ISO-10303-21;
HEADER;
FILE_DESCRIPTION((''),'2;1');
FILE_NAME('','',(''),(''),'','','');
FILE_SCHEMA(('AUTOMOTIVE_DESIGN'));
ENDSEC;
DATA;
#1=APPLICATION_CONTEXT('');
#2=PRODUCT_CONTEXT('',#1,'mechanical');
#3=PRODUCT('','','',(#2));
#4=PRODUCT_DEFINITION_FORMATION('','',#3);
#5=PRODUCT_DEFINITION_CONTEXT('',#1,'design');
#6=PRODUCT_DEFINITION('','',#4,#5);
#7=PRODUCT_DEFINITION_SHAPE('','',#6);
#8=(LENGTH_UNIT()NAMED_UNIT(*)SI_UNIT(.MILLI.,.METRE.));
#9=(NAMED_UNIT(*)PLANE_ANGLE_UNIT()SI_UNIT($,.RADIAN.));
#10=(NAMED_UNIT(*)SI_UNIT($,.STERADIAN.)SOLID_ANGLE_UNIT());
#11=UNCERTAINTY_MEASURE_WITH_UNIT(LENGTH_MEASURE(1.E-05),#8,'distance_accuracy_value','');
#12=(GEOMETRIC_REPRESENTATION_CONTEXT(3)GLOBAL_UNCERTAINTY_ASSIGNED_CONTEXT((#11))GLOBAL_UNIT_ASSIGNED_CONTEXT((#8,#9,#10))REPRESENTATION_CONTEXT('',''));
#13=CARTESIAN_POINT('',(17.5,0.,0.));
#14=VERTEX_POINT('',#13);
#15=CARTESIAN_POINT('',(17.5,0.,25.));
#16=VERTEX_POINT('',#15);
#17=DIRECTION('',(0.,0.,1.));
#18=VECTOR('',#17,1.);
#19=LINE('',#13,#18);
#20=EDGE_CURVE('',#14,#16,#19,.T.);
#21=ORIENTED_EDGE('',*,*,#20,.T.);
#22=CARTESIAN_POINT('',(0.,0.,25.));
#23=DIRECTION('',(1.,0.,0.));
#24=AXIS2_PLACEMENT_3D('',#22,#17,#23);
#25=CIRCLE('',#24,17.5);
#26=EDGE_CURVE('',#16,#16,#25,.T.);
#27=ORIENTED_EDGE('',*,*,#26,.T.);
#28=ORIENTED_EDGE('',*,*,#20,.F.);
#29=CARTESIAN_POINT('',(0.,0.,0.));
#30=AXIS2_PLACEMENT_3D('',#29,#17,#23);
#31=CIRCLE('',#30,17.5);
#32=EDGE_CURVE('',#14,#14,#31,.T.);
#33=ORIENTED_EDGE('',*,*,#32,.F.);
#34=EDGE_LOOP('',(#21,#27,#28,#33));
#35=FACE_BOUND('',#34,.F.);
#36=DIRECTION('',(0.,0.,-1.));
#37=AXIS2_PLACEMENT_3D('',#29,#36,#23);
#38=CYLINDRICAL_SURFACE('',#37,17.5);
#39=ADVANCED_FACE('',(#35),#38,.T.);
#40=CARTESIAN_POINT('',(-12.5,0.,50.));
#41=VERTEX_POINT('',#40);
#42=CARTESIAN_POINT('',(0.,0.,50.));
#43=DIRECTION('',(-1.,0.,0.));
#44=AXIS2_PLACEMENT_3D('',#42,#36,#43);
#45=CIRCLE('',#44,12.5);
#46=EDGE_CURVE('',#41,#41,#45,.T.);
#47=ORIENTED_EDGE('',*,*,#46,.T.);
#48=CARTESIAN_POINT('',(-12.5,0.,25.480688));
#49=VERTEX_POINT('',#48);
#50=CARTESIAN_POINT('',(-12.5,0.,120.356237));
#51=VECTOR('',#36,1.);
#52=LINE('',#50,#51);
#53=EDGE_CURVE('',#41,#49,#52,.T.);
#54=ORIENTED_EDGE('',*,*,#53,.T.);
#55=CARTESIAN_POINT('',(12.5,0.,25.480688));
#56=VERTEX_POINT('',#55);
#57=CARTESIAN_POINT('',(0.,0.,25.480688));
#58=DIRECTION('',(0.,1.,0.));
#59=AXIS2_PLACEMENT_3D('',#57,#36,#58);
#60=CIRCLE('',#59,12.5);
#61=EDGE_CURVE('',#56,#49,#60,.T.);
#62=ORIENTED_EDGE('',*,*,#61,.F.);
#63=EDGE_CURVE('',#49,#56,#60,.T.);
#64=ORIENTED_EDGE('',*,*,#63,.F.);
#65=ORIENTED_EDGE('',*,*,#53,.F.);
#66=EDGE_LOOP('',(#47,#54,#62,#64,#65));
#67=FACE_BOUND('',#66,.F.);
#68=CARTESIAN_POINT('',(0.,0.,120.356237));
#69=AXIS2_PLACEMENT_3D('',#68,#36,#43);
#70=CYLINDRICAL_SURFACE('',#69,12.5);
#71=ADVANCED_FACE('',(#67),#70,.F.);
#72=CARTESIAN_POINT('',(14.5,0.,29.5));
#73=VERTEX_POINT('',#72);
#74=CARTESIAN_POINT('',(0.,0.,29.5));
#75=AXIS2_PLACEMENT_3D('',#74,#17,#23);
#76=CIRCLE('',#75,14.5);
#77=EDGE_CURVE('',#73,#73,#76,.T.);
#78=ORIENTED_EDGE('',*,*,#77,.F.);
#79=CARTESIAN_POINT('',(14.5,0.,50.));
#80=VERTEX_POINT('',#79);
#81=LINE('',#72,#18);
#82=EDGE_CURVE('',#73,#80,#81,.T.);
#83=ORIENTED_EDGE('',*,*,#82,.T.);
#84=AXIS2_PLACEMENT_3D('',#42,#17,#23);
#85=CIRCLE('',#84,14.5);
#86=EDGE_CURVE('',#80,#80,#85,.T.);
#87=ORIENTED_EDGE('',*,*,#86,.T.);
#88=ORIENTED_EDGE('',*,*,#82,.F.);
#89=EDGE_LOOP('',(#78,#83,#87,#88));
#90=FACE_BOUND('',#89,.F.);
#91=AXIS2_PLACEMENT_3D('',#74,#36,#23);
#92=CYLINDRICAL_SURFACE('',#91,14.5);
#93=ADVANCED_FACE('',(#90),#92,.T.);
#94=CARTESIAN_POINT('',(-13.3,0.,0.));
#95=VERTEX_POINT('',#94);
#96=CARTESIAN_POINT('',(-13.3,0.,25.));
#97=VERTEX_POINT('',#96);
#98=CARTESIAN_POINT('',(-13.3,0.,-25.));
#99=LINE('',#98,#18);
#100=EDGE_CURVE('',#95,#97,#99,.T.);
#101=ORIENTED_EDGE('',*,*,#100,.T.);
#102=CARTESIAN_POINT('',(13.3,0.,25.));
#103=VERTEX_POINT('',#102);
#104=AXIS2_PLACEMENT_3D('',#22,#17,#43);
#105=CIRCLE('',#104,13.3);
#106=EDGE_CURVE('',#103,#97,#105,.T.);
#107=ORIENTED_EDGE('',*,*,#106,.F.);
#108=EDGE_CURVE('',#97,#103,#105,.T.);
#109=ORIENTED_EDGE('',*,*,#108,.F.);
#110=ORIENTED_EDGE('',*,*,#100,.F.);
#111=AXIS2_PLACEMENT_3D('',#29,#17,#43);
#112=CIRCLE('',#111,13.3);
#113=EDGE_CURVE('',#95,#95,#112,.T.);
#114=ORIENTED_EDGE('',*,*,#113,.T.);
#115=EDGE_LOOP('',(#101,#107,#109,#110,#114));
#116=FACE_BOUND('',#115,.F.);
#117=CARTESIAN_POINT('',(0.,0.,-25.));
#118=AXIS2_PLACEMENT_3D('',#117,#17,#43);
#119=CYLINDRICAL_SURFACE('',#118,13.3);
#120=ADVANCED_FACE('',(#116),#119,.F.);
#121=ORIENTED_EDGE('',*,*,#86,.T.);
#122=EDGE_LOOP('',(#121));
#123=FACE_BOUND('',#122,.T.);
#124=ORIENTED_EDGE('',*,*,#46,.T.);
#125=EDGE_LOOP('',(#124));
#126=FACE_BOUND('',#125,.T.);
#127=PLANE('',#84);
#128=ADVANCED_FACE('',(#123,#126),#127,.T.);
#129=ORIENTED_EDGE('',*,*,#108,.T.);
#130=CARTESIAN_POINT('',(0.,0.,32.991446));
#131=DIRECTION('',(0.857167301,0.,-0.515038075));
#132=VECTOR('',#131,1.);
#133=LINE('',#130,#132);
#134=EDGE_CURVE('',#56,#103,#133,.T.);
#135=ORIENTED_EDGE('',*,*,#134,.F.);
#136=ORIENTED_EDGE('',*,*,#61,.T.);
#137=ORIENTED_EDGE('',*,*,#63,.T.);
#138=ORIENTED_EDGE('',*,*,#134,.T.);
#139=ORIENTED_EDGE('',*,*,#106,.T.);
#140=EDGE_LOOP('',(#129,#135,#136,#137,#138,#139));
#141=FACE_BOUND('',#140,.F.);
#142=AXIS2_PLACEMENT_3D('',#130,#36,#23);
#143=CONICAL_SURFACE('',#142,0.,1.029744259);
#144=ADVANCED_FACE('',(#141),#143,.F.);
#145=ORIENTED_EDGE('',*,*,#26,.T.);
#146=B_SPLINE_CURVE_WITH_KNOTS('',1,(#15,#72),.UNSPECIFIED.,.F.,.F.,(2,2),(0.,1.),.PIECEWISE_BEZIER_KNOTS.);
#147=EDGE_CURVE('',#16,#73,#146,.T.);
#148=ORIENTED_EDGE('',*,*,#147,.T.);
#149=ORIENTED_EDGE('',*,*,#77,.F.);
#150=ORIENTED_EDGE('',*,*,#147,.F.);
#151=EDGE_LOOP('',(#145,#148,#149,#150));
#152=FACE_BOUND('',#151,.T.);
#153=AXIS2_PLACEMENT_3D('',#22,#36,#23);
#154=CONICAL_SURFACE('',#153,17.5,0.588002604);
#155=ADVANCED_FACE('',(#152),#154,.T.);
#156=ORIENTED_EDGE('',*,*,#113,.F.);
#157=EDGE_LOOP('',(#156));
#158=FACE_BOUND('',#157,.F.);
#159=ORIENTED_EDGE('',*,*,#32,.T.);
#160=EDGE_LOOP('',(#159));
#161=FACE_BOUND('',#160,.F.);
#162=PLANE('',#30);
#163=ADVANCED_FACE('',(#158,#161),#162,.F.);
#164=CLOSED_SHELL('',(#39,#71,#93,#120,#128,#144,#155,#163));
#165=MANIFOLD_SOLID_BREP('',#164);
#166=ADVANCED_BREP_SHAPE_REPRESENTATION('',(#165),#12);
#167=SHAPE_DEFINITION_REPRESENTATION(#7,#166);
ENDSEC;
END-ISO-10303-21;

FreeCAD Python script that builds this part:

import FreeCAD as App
import Part
import Sketcher
Q = App.Units.Quantity

doc = App.newDocument("Part")
body = doc.addObject("PartDesign::Body", "Body")

sketch1 = body.newObject("Sketcher::SketchObject", "Sketch")
sketch1.AttachmentSupport = (doc.getObject("XY_Plane"), [""])
sketch1.MapMode = "FlatFace"
sketch1.addGeometry(Part.Circle(App.Vector(0, 0, 0), App.Vector(0, 0, 1), 17.5), False)
sketch1.addConstraint(Sketcher.Constraint("Coincident", 0, 3, -1, 1))
sketch1.addConstraint(Sketcher.Constraint("Diameter", 0, Q("35 mm")))
pad1 = body.newObject("PartDesign::Pad", "Pad")
pad1.Profile = sketch1
pad1.Length = 25
body2 = doc.addObject("PartDesign::Body", "Body001")

sketch2 = body2.newObject("Sketcher::SketchObject", "Sketch001")
sketch2.AttachmentSupport = (doc.getObject("XY_Plane001"), [""])
sketch2.MapMode = "FlatFace"
sketch2.AttachmentOffset = App.Placement(App.Vector(0, 0, 29.5), App.Rotation())
sketch2.addGeometry(Part.Circle(App.Vector(0, 0, 0), App.Vector(0, 0, 1), 14.5), False)
sketch2.addConstraint(Sketcher.Constraint("Coincident", 0, 3, -1, 1))
sketch2.addConstraint(Sketcher.Constraint("Diameter", 0, Q("29 mm")))
pad2 = body2.newObject("PartDesign::Pad", "Pad001")
pad2.Profile = sketch2
pad2.Length = 20.5
body.AllowCompound = True
doc.recompute()

boolean = body.newObject("PartDesign::Boolean", "Boolean")
boolean.Type = "Fuse"
boolean.addObjects([body2])

sketch3 = body.newObject("Sketcher::SketchObject", "Sketch002")
sketch3.AttachmentSupport = (doc.getObject("XY_Plane"), [""])
sketch3.MapMode = "FlatFace"
sketch3.AttachmentOffset = App.Placement(App.Vector(0, 0, 25), App.Rotation())
sketch3.addGeometry(Part.Circle(App.Vector(0, 0, 0), App.Vector(0, 0, 1), 17.5), False)
sketch3.addConstraint(Sketcher.Constraint("Coincident", 0, 3, -1, 1))
sketch3.addConstraint(Sketcher.Constraint("Diameter", 0, Q("35 mm")))

sketch4 = body.newObject("Sketcher::SketchObject", "Sketch003")
sketch4.AttachmentSupport = (doc.getObject("XY_Plane"), [""])
sketch4.MapMode = "FlatFace"
sketch4.AttachmentOffset = App.Placement(App.Vector(0, 0, 29.5), App.Rotation())
sketch4.addGeometry(Part.Circle(App.Vector(0, 0, 0), App.Vector(0, 0, 1), 14.5), False)
sketch4.addConstraint(Sketcher.Constraint("Coincident", 0, 3, -1, 1))
sketch4.addConstraint(Sketcher.Constraint("Diameter", 0, Q("29 mm")))

additiveloft = body.newObject("PartDesign::AdditiveLoft", "AdditiveLoft")
additiveloft.Profile = sketch3
additiveloft.Sections = [sketch4]

sketch5 = body.newObject("Sketcher::SketchObject", "Sketch004")
sketch5.AttachmentSupport = (doc.getObject("XY_Plane"), [""])
sketch5.MapMode = "FlatFace"
sketch5.AttachmentOffset = App.Placement(App.Vector(0, 0, 50), App.Rotation())
sketch5.addGeometry(Part.Circle(App.Vector(0, 0, 0), App.Vector(0, 0, 1), 12.5), False)
sketch5.addConstraint(Sketcher.Constraint("Coincident", 0, 3, -1, 1))
sketch5.addConstraint(Sketcher.Constraint("Diameter", 0, Q("25 mm")))
doc.recompute()
hole = body.newObject("PartDesign::Hole", "Hole")
hole.Profile = sketch5
hole.ThreadType = "None"
hole.Diameter = 25
hole.DepthType = "ThroughAll"

sketch6 = body.newObject("Sketcher::SketchObject", "Sketch005")
sketch6.AttachmentSupport = (doc.getObject("XY_Plane"), [""])
sketch6.MapMode = "FlatFace"
sketch6.addGeometry(Part.Circle(App.Vector(0, 0, 0), App.Vector(0, 0, 1), 13.3), False)
sketch6.addConstraint(Sketcher.Constraint("Coincident", 0, 3, -1, 1))
sketch6.addConstraint(Sketcher.Constraint("Diameter", 0, Q("26.6 mm")))
doc.recompute()
hole2 = body.newObject("PartDesign::Hole", "Hole001")
hole2.Profile = sketch6
hole2.ThreadType = "None"
hole2.Diameter = 26.6
hole2.DepthType = "Dimension"
hole2.Depth = 25
hole2.DrillPoint = "Angled"
hole2.DrillPointAngle = 118
hole2.Reversed = True

doc.recompute()
